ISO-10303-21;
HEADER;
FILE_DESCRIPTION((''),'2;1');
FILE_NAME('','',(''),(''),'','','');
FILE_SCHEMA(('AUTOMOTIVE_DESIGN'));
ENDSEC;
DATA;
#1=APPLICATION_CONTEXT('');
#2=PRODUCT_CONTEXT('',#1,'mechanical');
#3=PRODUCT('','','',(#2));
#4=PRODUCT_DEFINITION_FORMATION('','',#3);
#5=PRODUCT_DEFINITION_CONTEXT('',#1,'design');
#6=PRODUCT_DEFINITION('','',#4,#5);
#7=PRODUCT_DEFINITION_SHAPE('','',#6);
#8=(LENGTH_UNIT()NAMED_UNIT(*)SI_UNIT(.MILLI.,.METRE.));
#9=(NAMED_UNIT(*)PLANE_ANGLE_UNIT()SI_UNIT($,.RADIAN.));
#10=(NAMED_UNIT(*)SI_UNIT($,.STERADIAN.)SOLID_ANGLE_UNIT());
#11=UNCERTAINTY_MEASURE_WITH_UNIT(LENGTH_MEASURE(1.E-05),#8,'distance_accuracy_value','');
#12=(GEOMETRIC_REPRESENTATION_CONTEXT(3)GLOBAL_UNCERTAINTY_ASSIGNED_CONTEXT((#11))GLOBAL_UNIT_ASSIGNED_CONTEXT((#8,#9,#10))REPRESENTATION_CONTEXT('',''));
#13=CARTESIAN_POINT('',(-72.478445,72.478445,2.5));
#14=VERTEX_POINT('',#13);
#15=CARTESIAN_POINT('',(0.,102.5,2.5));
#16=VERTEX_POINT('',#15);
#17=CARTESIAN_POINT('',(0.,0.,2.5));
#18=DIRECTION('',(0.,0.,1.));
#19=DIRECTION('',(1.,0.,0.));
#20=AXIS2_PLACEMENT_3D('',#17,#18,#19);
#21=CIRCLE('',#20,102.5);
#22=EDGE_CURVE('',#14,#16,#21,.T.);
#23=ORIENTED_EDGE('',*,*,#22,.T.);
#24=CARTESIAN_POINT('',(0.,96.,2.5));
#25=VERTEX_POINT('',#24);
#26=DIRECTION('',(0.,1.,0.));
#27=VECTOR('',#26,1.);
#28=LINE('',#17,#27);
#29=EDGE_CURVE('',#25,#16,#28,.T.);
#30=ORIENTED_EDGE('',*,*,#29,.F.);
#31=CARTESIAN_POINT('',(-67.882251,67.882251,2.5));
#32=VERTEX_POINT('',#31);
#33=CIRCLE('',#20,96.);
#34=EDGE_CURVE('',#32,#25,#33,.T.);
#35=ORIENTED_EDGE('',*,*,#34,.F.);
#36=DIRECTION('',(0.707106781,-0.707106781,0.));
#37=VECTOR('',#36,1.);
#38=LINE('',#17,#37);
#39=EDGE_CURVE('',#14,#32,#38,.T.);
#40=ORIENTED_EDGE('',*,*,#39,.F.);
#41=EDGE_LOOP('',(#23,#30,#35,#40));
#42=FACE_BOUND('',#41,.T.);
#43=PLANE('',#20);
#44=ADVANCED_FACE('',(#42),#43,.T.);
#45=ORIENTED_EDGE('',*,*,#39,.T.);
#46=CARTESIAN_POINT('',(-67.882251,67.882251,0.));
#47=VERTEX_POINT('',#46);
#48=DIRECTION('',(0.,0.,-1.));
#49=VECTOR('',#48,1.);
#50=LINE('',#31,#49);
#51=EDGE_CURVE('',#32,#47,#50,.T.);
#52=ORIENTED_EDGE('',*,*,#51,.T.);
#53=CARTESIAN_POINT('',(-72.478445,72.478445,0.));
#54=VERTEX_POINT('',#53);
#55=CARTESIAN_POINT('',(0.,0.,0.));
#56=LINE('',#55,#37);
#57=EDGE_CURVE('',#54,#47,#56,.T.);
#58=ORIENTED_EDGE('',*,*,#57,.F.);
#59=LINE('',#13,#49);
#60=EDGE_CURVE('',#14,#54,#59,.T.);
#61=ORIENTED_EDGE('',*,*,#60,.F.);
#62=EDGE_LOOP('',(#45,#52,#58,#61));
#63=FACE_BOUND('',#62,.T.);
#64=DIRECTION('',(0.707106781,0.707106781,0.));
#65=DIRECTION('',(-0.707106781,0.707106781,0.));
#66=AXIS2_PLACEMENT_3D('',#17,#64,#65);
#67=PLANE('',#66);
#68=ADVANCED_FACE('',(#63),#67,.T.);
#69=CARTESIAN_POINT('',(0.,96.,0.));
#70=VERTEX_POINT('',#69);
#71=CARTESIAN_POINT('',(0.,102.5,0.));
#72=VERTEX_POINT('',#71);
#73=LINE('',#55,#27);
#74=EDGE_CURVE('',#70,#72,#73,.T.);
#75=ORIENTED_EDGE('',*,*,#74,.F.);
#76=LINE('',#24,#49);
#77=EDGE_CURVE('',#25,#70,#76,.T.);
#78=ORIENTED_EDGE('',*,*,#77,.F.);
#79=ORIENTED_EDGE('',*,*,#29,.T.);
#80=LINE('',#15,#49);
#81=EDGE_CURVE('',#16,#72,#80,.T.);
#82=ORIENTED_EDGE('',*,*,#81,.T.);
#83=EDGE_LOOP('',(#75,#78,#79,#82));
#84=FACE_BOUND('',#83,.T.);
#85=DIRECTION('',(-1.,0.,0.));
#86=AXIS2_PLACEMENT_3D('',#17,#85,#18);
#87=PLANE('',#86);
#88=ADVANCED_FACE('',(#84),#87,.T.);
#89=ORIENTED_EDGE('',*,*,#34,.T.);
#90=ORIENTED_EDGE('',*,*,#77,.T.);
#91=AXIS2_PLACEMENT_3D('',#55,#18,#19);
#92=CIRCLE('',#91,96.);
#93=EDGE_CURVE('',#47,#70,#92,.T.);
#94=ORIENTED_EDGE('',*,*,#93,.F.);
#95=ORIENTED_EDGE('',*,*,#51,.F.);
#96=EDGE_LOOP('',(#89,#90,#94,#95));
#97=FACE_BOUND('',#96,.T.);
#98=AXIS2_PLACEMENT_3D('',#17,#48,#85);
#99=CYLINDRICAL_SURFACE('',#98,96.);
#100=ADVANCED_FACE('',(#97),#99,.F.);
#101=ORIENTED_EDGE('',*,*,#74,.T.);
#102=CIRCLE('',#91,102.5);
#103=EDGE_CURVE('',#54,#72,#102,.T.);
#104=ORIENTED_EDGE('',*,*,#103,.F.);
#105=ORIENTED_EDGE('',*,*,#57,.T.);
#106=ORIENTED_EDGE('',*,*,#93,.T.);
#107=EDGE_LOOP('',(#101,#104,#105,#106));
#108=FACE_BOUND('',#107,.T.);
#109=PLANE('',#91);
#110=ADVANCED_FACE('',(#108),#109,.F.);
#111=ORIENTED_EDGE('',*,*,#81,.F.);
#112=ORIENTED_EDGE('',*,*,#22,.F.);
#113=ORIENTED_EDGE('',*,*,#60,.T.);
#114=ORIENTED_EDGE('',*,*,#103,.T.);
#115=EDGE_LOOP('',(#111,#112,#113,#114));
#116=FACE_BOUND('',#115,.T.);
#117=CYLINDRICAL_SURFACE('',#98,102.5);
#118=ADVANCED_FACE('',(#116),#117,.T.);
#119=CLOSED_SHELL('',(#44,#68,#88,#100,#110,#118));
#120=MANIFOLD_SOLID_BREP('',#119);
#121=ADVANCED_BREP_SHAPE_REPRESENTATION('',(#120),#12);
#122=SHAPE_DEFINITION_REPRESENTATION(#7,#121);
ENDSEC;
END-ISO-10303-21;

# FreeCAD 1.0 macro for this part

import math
import FreeCAD as App
import Part
import Sketcher

V = App.Vector
Q = App.Units.Quantity

doc = App.newDocument("Part")
body = doc.addObject("PartDesign::Body", "Body")

# Sketch on XY plane
sketch1 = body.newObject("Sketcher::SketchObject", "Sketch")
sketch1.AttachmentSupport = (doc.getObject("XY_Plane"), [""])
sketch1.MapMode = "FlatFace"
sketch1.addGeometry(Part.LineSegment(V(0, 102.5, 0), V(0, 96, 0)), False)
sketch1.addGeometry(Part.ArcOfCircle(Part.Circle(V(0, 0, 0), V(0, 0, 1), 96), math.radians(0), math.radians(90)), False)
sketch1.addGeometry(Part.ArcOfCircle(Part.Circle(V(0, 0, 0), V(0, 0, 1), 96), math.radians(135), math.radians(360)), False)
sketch1.addGeometry(Part.LineSegment(V(-67.882251, 67.882251, 0), V(-72.478445, 72.478445, 0)), False)
sketch1.addGeometry(Part.ArcOfCircle(Part.Circle(V(0, 0, 0), V(0, 0, 1), 102.5), math.radians(135), math.radians(360)), False)
sketch1.addGeometry(Part.ArcOfCircle(Part.Circle(V(0, 0, 0), V(0, 0, 1), 102.5), math.radians(0), math.radians(90)), False)
sketch1.addConstraint(Sketcher.Constraint("Coincident", 0, 2, 1, 2))
sketch1.addConstraint(Sketcher.Constraint("Tangent", 1, 1, 2, 2))
sketch1.addConstraint(Sketcher.Constraint("Coincident", 2, 1, 3, 1))
sketch1.addConstraint(Sketcher.Constraint("Coincident", 3, 2, 4, 1))
sketch1.addConstraint(Sketcher.Constraint("Tangent", 4, 2, 5, 1))
sketch1.addConstraint(Sketcher.Constraint("Coincident", 5, 2, 0, 1))
sketch1.addConstraint(Sketcher.Constraint("Vertical", 0))
sketch1.addConstraint(Sketcher.Constraint("Coincident", 1, 3, -1, 1))
sketch1.addConstraint(Sketcher.Constraint("Coincident", 4, 3, -1, 1))
sketch1.addConstraint(Sketcher.Constraint("Equal", 1, 2))
sketch1.addConstraint(Sketcher.Constraint("Equal", 4, 5))
sketch1.addConstraint(Sketcher.Constraint("PointOnObject", 0, 2, -2))
sketch1.addConstraint(Sketcher.Constraint("PointOnObject", 1, 1, -1))
sketch1.addConstraint(Sketcher.Constraint("PointOnObject", 4, 2, -1))
sketch1.addConstraint(Sketcher.Constraint("Radius", 1, Q("96 mm")))
sketch1.addConstraint(Sketcher.Constraint("Radius", 4, Q("102.5 mm")))
sketch1.addConstraint(Sketcher.Constraint("Angle", 3, Q("135 deg")))
sketch1.addConstraint(Sketcher.Constraint("DistanceX", 2, 1, -1, 1, Q("67.882251 mm")))
pad1 = body.newObject("PartDesign::Pad", "Pad")
pad1.Profile = sketch1
pad1.Length = 2.5

doc.recompute()
